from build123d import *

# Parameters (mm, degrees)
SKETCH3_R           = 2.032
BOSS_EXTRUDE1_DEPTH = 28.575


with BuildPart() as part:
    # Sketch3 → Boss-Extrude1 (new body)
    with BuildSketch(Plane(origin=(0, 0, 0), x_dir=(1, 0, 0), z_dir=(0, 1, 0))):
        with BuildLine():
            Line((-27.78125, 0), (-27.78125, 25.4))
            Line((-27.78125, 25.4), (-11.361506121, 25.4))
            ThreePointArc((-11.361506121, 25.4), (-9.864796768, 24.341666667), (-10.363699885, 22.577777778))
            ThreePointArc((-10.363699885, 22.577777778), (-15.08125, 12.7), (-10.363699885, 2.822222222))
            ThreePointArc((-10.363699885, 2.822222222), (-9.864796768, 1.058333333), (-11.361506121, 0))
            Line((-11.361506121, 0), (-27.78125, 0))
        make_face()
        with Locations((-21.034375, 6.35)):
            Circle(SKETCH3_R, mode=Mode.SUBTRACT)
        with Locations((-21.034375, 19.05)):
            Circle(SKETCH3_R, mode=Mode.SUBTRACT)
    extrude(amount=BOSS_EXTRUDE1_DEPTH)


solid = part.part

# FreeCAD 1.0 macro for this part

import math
import FreeCAD as App
import Part
import Sketcher

V = App.Vector
Q = App.Units.Quantity

doc = App.newDocument("Part")
body = doc.addObject("PartDesign::Body", "Body")

# Sketch on XZ plane
sketch1 = body.newObject("Sketcher::SketchObject", "Sketch")
sketch1.AttachmentSupport = (doc.getObject("XZ_Plane"), [""])
sketch1.MapMode = "FlatFace"
sketch1.addGeometry(Part.LineSegment(V(-27.8, -25.4, 0), V(-27.8, 0, 0)), False)
sketch1.addGeometry(Part.LineSegment(V(-27.8, 0, 0), V(-11.4, 0, 0)), False)
sketch1.addGeometry(Part.ArcOfCircle(Part.Circle(V(-11.4, -1.6, 0), V(0, 0, 1), 1.6), math.radians(-51), math.radians(90)), False)
sketch1.addGeometry(Part.ArcOfCircle(Part.Circle(V(-2.4, -12.7, 0), V(0, 0, 1), 12.7), math.radians(129), math.radians(231)), False)
sketch1.addGeometry(Part.ArcOfCircle(Part.Circle(V(-11.4, -23.8, 0), V(0, 0, 1), 1.6), math.radians(-90), math.radians(51)), False)
sketch1.addGeometry(Part.LineSegment(V(-11.4, -25.4, 0), V(-27.8, -25.4, 0)), False)
sketch1.addGeometry(Part.Circle(V(-21, -6.3, 0), V(0, 0, 1), 2), False)
sketch1.addGeometry(Part.Circle(V(-21, -19.1, 0), V(0, 0, 1), 2), False)
sketch1.addConstraint(Sketcher.Constraint("Coincident", 0, 2, 1, 1))
sketch1.addConstraint(Sketcher.Constraint("Tangent", 1, 2, 2, 2))
sketch1.addConstraint(Sketcher.Constraint("Tangent", 2, 1, 3, 1))
sketch1.addConstraint(Sketcher.Constraint("Tangent", 3, 2, 4, 2))
sketch1.addConstraint(Sketcher.Constraint("Tangent", 4, 1, 5, 1))
sketch1.addConstraint(Sketcher.Constraint("Coincident", 5, 2, 0, 1))
sketch1.addConstraint(Sketcher.Constraint("Vertical", 0))
sketch1.addConstraint(Sketcher.Constraint("Horizontal", 1))
sketch1.addConstraint(Sketcher.Constraint("Horizontal", 5))
sketch1.addConstraint(Sketcher.Constraint("Equal", 2, 4))
sketch1.addConstraint(Sketcher.Constraint("Equal", 6, 7))
sketch1.addConstraint(Sketcher.Constraint("PointOnObject", 0, 2, -1))
sketch1.addConstraint(Sketcher.Constraint("Vertical", 2, 3, 4, 3))
sketch1.addConstraint(Sketcher.Constraint("Vertical", 6, 3, 7, 3))
sketch1.addConstraint(Sketcher.Constraint("Radius", 3, Q("0.5 in")))
sketch1.addConstraint(Sketcher.Constraint("Diameter", 6, Q("0.16 in")))
sketch1.addConstraint(Sketcher.Constraint("DistanceY", 0, 1, 0, 2, Q("1 in")))
sketch1.addConstraint(Sketcher.Constraint("Radius", 2, Q("0.0625 in")))
sketch1.addConstraint(Sketcher.Constraint("DistanceX", 0, 2, 3, 3, Q("1 in")))
sketch1.addConstraint(Sketcher.Constraint("DistanceY", 7, 3, 6, 3, Q("0.5 in")))
sketch1.addConstraint(Sketcher.Constraint("DistanceY", 6, 3, -1, 1, Q("0.25 in")))
sketch1.addConstraint(Sketcher.Constraint("DistanceX", 3, 3, -1, 1, Q("0.09375 in")))
sketch1.addConstraint(Sketcher.Constraint("DistanceX", 6, 3, -1, 1, Q("0.828125 in")))
pad1 = body.newObject("PartDesign::Pad", "Pad")
pad1.Profile = sketch1
pad1.Length = Q("1.125 in")
pad1.Reversed = True

doc.recompute()
